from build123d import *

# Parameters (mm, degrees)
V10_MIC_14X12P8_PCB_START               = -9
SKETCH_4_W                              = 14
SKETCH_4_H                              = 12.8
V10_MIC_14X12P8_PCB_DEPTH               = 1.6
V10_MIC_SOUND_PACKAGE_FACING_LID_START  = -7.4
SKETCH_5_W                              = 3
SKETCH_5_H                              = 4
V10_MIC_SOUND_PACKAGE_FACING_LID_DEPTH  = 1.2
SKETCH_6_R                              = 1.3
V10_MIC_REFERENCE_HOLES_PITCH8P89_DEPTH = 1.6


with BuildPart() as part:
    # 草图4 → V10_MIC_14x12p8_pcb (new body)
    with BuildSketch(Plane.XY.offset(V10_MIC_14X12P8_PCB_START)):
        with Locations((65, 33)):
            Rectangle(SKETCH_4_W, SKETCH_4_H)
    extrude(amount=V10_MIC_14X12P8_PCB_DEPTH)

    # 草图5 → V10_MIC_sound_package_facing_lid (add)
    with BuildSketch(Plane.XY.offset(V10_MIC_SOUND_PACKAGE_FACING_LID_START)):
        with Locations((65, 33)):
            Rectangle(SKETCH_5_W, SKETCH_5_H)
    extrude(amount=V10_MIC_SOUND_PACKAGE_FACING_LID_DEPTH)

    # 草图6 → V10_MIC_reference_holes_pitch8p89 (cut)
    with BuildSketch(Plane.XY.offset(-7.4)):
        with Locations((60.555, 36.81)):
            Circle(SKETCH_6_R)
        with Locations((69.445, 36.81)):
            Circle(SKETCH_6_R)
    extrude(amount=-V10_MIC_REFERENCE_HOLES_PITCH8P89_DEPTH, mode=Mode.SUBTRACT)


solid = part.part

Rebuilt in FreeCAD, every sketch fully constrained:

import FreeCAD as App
import Part
import Sketcher
from FreeCAD import Vector

doc = App.newDocument("Part")
body = doc.addObject("PartDesign::Body", "Body")

# Sketch on XY plane
sketch1 = doc.addObject("Sketcher::SketchObject", "Sketch")
body.addObject(sketch1)
sketch1.AttachmentSupport = (doc.XY_Plane, [""])
sketch1.MapMode = "FlatFace"
sketch1.AttachmentOffset = App.Placement(Vector(0, 0, -9), App.Rotation())
sketch1.addGeometry(Part.LineSegment(Vector(58, 39, 0), Vector(58, 27, 0)), False)
sketch1.addGeometry(Part.LineSegment(Vector(58, 27, 0), Vector(72, 27, 0)), False)
sketch1.addGeometry(Part.LineSegment(Vector(72, 27, 0), Vector(72, 39, 0)), False)
sketch1.addGeometry(Part.LineSegment(Vector(72, 39, 0), Vector(58, 39, 0)), False)
sketch1.addConstraint(Sketcher.Constraint("Coincident", 0, 2, 1, 1))
sketch1.addConstraint(Sketcher.Constraint("Coincident", 1, 2, 2, 1))
sketch1.addConstraint(Sketcher.Constraint("Coincident", 2, 2, 3, 1))
sketch1.addConstraint(Sketcher.Constraint("Coincident", 3, 2, 0, 1))
sketch1.addConstraint(Sketcher.Constraint("Vertical", 0))
sketch1.addConstraint(Sketcher.Constraint("Horizontal", 1))
sketch1.addConstraint(Sketcher.Constraint("Vertical", 2))
sketch1.addConstraint(Sketcher.Constraint("Horizontal", 3))
sketch1.addConstraint(Sketcher.Constraint("DistanceX", 1, 1, 1, 2, 14.0))
sketch1.addConstraint(Sketcher.Constraint("DistanceY", 0, 2, 0, 1, 12.8))
sketch1.addConstraint(Sketcher.Constraint("DistanceX", -1, 1, 0, 2, 58.0))
sketch1.addConstraint(Sketcher.Constraint("DistanceY", -1, 1, 0, 2, 26.6))
pad1 = doc.addObject("PartDesign::Pad", "Pad")
body.addObject(pad1)
pad1.Profile = sketch1
pad1.Length = 1.6

# Sketch on XY plane
sketch2 = doc.addObject("Sketcher::SketchObject", "Sketch001")
body.addObject(sketch2)
sketch2.AttachmentSupport = (doc.XY_Plane, [""])
sketch2.MapMode = "FlatFace"
sketch2.AttachmentOffset = App.Placement(Vector(0, 0, -7.4), App.Rotation())
sketch2.addGeometry(Part.LineSegment(Vector(63.5, 35, 0), Vector(63.5, 31, 0)), False)
sketch2.addGeometry(Part.LineSegment(Vector(63.5, 31, 0), Vector(66.5, 31, 0)), False)
sketch2.addGeometry(Part.LineSegment(Vector(66.5, 31, 0), Vector(66.5, 35, 0)), False)
sketch2.addGeometry(Part.LineSegment(Vector(66.5, 35, 0), Vector(63.5, 35, 0)), False)
sketch2.addConstraint(Sketcher.Constraint("Coincident", 0, 2, 1, 1))
sketch2.addConstraint(Sketcher.Constraint("Coincident", 1, 2, 2, 1))
sketch2.addConstraint(Sketcher.Constraint("Coincident", 2, 2, 3, 1))
sketch2.addConstraint(Sketcher.Constraint("Coincident", 3, 2, 0, 1))
sketch2.addConstraint(Sketcher.Constraint("Vertical", 0))
sketch2.addConstraint(Sketcher.Constraint("Horizontal", 1))
sketch2.addConstraint(Sketcher.Constraint("Vertical", 2))
sketch2.addConstraint(Sketcher.Constraint("Horizontal", 3))
sketch2.addConstraint(Sketcher.Constraint("DistanceX", 1, 1, 1, 2, 3.0))
sketch2.addConstraint(Sketcher.Constraint("DistanceY", 0, 2, 0, 1, 4.0))
sketch2.addConstraint(Sketcher.Constraint("DistanceY", -1, 1, 0, 2, 31.0))
sketch2.addConstraint(Sketcher.Constraint("DistanceX", -1, 1, 0, 2, 63.5))
pad2 = doc.addObject("PartDesign::Pad", "Pad001")
body.addObject(pad2)
pad2.Profile = sketch2
pad2.Length = 1.2

# Sketch on XY plane
sketch3 = doc.addObject("Sketcher::SketchObject", "Sketch002")
body.addObject(sketch3)
sketch3.AttachmentSupport = (doc.XY_Plane, [""])
sketch3.MapMode = "FlatFace"
sketch3.AttachmentOffset = App.Placement(Vector(0, 0, -7.4), App.Rotation())
sketch3.addGeometry(Part.Circle(Vector(60.6, 36.8, 0), Vector(0, 0, 1), 1.3), False)
sketch3.addGeometry(Part.Circle(Vector(69.4, 36.8, 0), Vector(0, 0, 1), 1.3), False)
sketch3.addConstraint(Sketcher.Constraint("Equal", 0, 1))
sketch3.addConstraint(Sketcher.Constraint("Horizontal", 0, 3, 1, 3))
sketch3.addConstraint(Sketcher.Constraint("Diameter", 0, 2.6))
sketch3.addConstraint(Sketcher.Constraint("DistanceY", -1, 1, 0, 3, 36.81))
sketch3.addConstraint(Sketcher.Constraint("DistanceX", 0, 3, 1, 3, 8.89))
sketch3.addConstraint(Sketcher.Constraint("DistanceX", -1, 1, 0, 3, 60.555))
pocket1 = doc.addObject("PartDesign::Pocket", "Pocket")
body.addObject(pocket1)
pocket1.Profile = sketch3
pocket1.Length = 1.6

doc.recompute()
